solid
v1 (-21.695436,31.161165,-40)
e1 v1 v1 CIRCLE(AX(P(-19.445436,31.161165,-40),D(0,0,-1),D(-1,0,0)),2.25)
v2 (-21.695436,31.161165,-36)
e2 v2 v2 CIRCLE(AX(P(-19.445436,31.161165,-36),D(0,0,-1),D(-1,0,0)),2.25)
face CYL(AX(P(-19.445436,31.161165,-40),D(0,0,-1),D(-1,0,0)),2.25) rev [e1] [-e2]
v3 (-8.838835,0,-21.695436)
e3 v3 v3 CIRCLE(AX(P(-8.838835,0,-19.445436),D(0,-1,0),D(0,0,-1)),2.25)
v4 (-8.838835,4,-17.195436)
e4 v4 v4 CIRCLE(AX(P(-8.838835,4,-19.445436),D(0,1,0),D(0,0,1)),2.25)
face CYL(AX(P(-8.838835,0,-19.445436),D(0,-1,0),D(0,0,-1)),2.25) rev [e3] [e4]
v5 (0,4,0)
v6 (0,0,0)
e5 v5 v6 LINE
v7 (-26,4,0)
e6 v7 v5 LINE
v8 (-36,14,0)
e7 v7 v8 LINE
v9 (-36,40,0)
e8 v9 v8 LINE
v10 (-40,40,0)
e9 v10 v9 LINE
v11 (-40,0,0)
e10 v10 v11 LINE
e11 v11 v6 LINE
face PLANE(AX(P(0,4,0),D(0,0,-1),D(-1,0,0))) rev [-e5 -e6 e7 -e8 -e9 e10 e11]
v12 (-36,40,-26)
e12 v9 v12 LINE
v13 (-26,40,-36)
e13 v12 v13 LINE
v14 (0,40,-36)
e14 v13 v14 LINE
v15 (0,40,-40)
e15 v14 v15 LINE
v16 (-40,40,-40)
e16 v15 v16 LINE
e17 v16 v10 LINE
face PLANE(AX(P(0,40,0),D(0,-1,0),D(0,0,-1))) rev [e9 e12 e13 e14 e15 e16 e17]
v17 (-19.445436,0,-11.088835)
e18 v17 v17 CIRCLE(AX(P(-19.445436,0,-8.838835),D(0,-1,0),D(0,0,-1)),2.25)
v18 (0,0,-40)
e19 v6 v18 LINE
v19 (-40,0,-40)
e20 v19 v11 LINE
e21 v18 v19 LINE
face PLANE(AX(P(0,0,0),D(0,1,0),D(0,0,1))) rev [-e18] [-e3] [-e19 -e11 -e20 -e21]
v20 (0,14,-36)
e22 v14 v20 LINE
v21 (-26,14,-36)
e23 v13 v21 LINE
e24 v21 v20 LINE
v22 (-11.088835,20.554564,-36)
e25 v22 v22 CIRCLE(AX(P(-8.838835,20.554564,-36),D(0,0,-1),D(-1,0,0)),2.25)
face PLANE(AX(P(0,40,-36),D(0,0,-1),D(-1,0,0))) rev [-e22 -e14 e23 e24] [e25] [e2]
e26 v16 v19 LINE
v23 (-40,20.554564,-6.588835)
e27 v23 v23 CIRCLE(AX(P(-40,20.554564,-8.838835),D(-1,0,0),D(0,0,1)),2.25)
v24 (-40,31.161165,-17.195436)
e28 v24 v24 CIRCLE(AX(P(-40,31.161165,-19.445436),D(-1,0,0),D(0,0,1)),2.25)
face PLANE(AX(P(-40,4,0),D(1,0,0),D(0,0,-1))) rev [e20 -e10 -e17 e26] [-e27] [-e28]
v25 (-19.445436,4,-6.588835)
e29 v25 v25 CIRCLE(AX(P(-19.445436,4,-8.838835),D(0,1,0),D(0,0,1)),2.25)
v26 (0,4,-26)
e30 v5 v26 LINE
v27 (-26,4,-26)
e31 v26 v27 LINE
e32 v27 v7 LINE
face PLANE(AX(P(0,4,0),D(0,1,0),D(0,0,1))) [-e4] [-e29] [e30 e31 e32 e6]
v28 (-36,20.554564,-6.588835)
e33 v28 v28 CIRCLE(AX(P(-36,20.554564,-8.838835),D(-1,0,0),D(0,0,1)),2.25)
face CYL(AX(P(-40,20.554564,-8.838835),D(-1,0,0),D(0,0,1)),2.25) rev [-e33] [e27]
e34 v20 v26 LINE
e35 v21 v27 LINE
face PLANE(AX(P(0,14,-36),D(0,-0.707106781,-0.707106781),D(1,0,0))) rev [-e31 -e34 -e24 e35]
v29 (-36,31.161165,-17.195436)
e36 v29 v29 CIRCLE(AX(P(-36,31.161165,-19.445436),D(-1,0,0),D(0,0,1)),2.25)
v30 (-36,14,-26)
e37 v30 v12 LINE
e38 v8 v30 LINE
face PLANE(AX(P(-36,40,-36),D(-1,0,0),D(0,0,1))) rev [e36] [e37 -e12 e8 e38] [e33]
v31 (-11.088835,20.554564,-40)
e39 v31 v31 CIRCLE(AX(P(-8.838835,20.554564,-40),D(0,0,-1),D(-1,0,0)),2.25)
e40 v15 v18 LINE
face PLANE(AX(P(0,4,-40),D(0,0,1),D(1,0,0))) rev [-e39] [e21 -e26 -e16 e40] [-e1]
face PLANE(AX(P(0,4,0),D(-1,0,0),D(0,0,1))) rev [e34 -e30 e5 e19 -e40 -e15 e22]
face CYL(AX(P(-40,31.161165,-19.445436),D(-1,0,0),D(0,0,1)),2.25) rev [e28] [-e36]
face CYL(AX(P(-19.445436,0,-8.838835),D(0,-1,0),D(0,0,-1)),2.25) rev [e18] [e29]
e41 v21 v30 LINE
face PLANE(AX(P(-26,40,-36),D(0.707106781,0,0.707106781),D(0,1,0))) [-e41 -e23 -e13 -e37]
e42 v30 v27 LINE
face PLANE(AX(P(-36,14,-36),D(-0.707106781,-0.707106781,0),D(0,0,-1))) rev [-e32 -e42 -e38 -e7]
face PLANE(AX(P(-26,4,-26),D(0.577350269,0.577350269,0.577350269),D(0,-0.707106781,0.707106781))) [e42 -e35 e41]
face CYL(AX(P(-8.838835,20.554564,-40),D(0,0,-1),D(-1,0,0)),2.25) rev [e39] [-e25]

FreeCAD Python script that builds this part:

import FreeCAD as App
import Part
import Sketcher

V = App.Vector


def edges_at(feature, points):
    """Names of the edges that pass closest to the given points."""
    edges = feature.Shape.Edges
    near = lambda p: min(range(len(edges)), key=lambda i: edges[i].distToShape(Part.Vertex(*p))[0])
    return sorted({f"Edge{near(p) + 1}" for p in points})

doc = App.newDocument("Part")
params = doc.addObject("Spreadsheet::Sheet", "Params")
for row, (alias, value) in enumerate([
    ("sketch1_width", "40 mm"),
    ("pad1_length", "4 mm"),
    ("sketch2_width", "4 mm"),
    ("sketch2_width2", "36 mm"),
    ("pad2_length", "36 mm"),
    ("chamfer_size", "10 mm"),
    ("sketch3_diameter", "4.5 mm"),
    ("hole_diameter", "4.5 mm"),
    ("hole_depth", "9 mm"),
    ("sketch4_diameter", "4.5 mm"),
    ("hole2_diameter", "4.5 mm"),
    ("hole2_depth", "9 mm"),
    ("sketch5_diameter", "4.5 mm"),
    ("hole3_diameter", "4.5 mm"),
    ("hole3_depth", "9 mm"),
], start=1):
    params.set(f"A{row}", alias)
    params.set(f"B{row}", "=" + value)
    params.setAlias(f"B{row}", alias)

body = doc.addObject("PartDesign::Body", "Body")

# Sketch on XZ plane
sketch1 = body.newObject("Sketcher::SketchObject", "Sketch")
sketch1.AttachmentSupport = (doc.getObject("XZ_Plane"), [""])
sketch1.MapMode = "FlatFace"
sketch1.addGeometry(Part.LineSegment(V(-40, -40, 0), V(-40, 0, 0)), False)
sketch1.addGeometry(Part.LineSegment(V(-40, 0, 0), V(0, 0, 0)), False)
sketch1.addGeometry(Part.LineSegment(V(0, 0, 0), V(0, -40, 0)), False)
sketch1.addGeometry(Part.LineSegment(V(0, -40, 0), V(-40, -40, 0)), False)
sketch1.addConstraint(Sketcher.Constraint("Coincident", 0, 2, 1, 1))
sketch1.addConstraint(Sketcher.Constraint("Coincident", 1, 2, 2, 1))
sketch1.addConstraint(Sketcher.Constraint("Coincident", 2, 2, 3, 1))
sketch1.addConstraint(Sketcher.Constraint("Coincident", 3, 2, 0, 1))
sketch1.addConstraint(Sketcher.Constraint("Vertical", 0))
sketch1.addConstraint(Sketcher.Constraint("Horizontal", 1))
sketch1.addConstraint(Sketcher.Constraint("Vertical", 2))
sketch1.addConstraint(Sketcher.Constraint("Horizontal", 3))
sketch1.addConstraint(Sketcher.Constraint("Coincident", 1, 2, -1, 1))
sketch1.addConstraint(Sketcher.Constraint("Equal", 3, 0))
sketch1.addConstraint(Sketcher.Constraint("DistanceX", 1, 1, 1, 2, 40.0))
sketch1.setExpression("Constraints[10]", "Params.sketch1_width")
pad1 = body.newObject("PartDesign::Pad", "Pad")
pad1.Profile = sketch1
pad1.setExpression("Length", "Params.pad1_length")
pad1.Reversed = True

# Sketch on XZ plane
sketch2 = body.newObject("Sketcher::SketchObject", "Sketch001")
sketch2.AttachmentSupport = (doc.getObject("XZ_Plane"), [""])
sketch2.MapMode = "FlatFace"
sketch2.AttachmentOffset = App.Placement(V(0, 0, -4), App.Rotation())
sketch2.addGeometry(Part.LineSegment(V(-40, 0, 0), V(-36, 0, 0)), False)
sketch2.addGeometry(Part.LineSegment(V(-36, 0, 0), V(-36, -36, 0)), False)
sketch2.addGeometry(Part.LineSegment(V(-36, -36, 0), V(0, -36, 0)), False)
sketch2.addGeometry(Part.LineSegment(V(0, -36, 0), V(0, -40, 0)), False)
sketch2.addGeometry(Part.LineSegment(V(0, -40, 0), V(-40, -40, 0)), False)
sketch2.addGeometry(Part.LineSegment(V(-40, -40, 0), V(-40, 0, 0)), False)
sketch2.addConstraint(Sketcher.Constraint("Coincident", 0, 2, 1, 1))
sketch2.addConstraint(Sketcher.Constraint("Coincident", 1, 2, 2, 1))
sketch2.addConstraint(Sketcher.Constraint("Coincident", 2, 2, 3, 1))
sketch2.addConstraint(Sketcher.Constraint("Coincident", 3, 2, 4, 1))
sketch2.addConstraint(Sketcher.Constraint("Coincident", 4, 2, 5, 1))
sketch2.addConstraint(Sketcher.Constraint("Coincident", 5, 2, 0, 1))
sketch2.addConstraint(Sketcher.Constraint("Horizontal", 0))
sketch2.addConstraint(Sketcher.Constraint("Vertical", 1))
sketch2.addConstraint(Sketcher.Constraint("Horizontal", 2))
sketch2.addConstraint(Sketcher.Constraint("Vertical", 3))
sketch2.addConstraint(Sketcher.Constraint("Horizontal", 4))
sketch2.addConstraint(Sketcher.Constraint("Vertical", 5))
sketch2.addConstraint(Sketcher.Constraint("PointOnObject", 0, 2, -1))
sketch2.addConstraint(Sketcher.Constraint("PointOnObject", 2, 2, -2))
sketch2.addConstraint(Sketcher.Constraint("Equal", 2, 1))
sketch2.addConstraint(Sketcher.Constraint("Equal", 0, 3))
sketch2.addConstraint(Sketcher.Constraint("DistanceX", 0, 1, 0, 2, 4.0))
sketch2.addConstraint(Sketcher.Constraint("DistanceX", 2, 1, 2, 2, 36.0))
sketch2.setExpression("Constraints[16]", "Params.sketch2_width")
sketch2.setExpression("Constraints[17]", "Params.sketch2_width2")
pad2 = body.newObject("PartDesign::Pad", "Pad001")
pad2.Profile = sketch2
pad2.setExpression("Length", "Params.pad2_length")
pad2.Reversed = True
doc.recompute()

chamfer = body.newObject("PartDesign::Chamfer", "Chamfer")
chamfer.Base = (pad2, edges_at(pad2, [(-36, 4, -18), (-18, 4, -36), (-36, 22, -36)]))
chamfer.setExpression("Size", "Params.chamfer_size")

# Sketch on XZ plane
sketch3 = body.newObject("Sketcher::SketchObject", "Sketch002")
sketch3.AttachmentSupport = (doc.getObject("XZ_Plane"), [""])
sketch3.MapMode = "FlatFace"
sketch3.addGeometry(Part.Circle(V(-8.8, -19.4, 0), V(0, 0, 1), 2.2), False)
sketch3.addGeometry(Part.Circle(V(-19.4, -8.8, 0), V(0, 0, 1), 2.2), False)
sketch3.addConstraint(Sketcher.Constraint("Equal", 0, 1))
sketch3.addConstraint(Sketcher.Constraint("Diameter", 0, 4.5))
sketch3.addConstraint(Sketcher.Constraint("DistanceX", 1, 3, 0, 3, 10.606602))
sketch3.addConstraint(Sketcher.Constraint("DistanceY", 0, 3, 1, 3, 10.606602))
sketch3.addConstraint(Sketcher.Constraint("DistanceX", 0, 3, -1, 1, 8.838835))
sketch3.addConstraint(Sketcher.Constraint("DistanceY", 0, 3, -1, 1, 19.445436))
sketch3.setExpression("Constraints[1]", "Params.sketch3_diameter")
doc.recompute()
hole = body.newObject("PartDesign::Hole", "Hole")
hole.Profile = sketch3
hole.ThreadType = "None"
hole.setExpression("Diameter", "Params.hole_diameter")
hole.DepthType = "Dimension"
hole.setExpression("Depth", "Params.hole_depth")
hole.DrillPoint = "Angled"
hole.DrillPointAngle = 118

# Sketch on XY plane
sketch4 = body.newObject("Sketcher::SketchObject", "Sketch003")
sketch4.AttachmentSupport = (doc.getObject("XY_Plane"), [""])
sketch4.MapMode = "FlatFace"
sketch4.AttachmentOffset = App.Placement(V(0, 0, -40), App.Rotation())
sketch4.addGeometry(Part.Circle(V(-8.8, 20.6, 0), V(0, 0, 1), 2.2), False)
sketch4.addGeometry(Part.Circle(V(-19.4, 31.2, 0), V(0, 0, 1), 2.2), False)
sketch4.addConstraint(Sketcher.Constraint("Equal", 0, 1))
sketch4.addConstraint(Sketcher.Constraint("Diameter", 0, 4.5))
sketch4.addConstraint(Sketcher.Constraint("DistanceX", 1, 3, 0, 3, 10.606602))
sketch4.addConstraint(Sketcher.Constraint("DistanceY", 0, 3, 1, 3, 10.606602))
sketch4.addConstraint(Sketcher.Constraint("DistanceX", 0, 3, -1, 1, 8.838835))
sketch4.addConstraint(Sketcher.Constraint("DistanceY", -1, 1, 0, 3, 20.554564))
sketch4.setExpression("Constraints[1]", "Params.sketch4_diameter")
doc.recompute()
hole2 = body.newObject("PartDesign::Hole", "Hole001")
hole2.Profile = sketch4
hole2.ThreadType = "None"
hole2.setExpression("Diameter", "Params.hole2_diameter")
hole2.DepthType = "Dimension"
hole2.setExpression("Depth", "Params.hole2_depth")
hole2.DrillPoint = "Angled"
hole2.DrillPointAngle = 118
hole2.Reversed = True

# Sketch on YZ plane
sketch5 = body.newObject("Sketcher::SketchObject", "Sketch004")
sketch5.AttachmentSupport = (doc.getObject("YZ_Plane"), [""])
sketch5.MapMode = "FlatFace"
sketch5.AttachmentOffset = App.Placement(V(0, 0, -40), App.Rotation())
sketch5.addGeometry(Part.Circle(V(31.2, -19.4, 0), V(0, 0, 1), 2.2), False)
sketch5.addGeometry(Part.Circle(V(20.6, -8.8, 0), V(0, 0, 1), 2.2), False)
sketch5.addConstraint(Sketcher.Constraint("Equal", 0, 1))
sketch5.addConstraint(Sketcher.Constraint("Diameter", 0, 4.5))
sketch5.addConstraint(Sketcher.Constraint("DistanceX", 1, 3, 0, 3, 10.606602))
sketch5.addConstraint(Sketcher.Constraint("DistanceY", 0, 3, 1, 3, 10.606602))
sketch5.addConstraint(Sketcher.Constraint("DistanceX", -1, 1, 0, 3, 31.161165))
sketch5.addConstraint(Sketcher.Constraint("DistanceY", 0, 3, -1, 1, 19.445436))
sketch5.setExpression("Constraints[1]", "Params.sketch5_diameter")
doc.recompute()
hole3 = body.newObject("PartDesign::Hole", "Hole002")
hole3.Profile = sketch5
hole3.ThreadType = "None"
hole3.setExpression("Diameter", "Params.hole3_diameter")
hole3.DepthType = "Dimension"
hole3.setExpression("Depth", "Params.hole3_depth")
hole3.DrillPoint = "Angled"
hole3.DrillPointAngle = 118
hole3.Reversed = True

doc.recompute()
